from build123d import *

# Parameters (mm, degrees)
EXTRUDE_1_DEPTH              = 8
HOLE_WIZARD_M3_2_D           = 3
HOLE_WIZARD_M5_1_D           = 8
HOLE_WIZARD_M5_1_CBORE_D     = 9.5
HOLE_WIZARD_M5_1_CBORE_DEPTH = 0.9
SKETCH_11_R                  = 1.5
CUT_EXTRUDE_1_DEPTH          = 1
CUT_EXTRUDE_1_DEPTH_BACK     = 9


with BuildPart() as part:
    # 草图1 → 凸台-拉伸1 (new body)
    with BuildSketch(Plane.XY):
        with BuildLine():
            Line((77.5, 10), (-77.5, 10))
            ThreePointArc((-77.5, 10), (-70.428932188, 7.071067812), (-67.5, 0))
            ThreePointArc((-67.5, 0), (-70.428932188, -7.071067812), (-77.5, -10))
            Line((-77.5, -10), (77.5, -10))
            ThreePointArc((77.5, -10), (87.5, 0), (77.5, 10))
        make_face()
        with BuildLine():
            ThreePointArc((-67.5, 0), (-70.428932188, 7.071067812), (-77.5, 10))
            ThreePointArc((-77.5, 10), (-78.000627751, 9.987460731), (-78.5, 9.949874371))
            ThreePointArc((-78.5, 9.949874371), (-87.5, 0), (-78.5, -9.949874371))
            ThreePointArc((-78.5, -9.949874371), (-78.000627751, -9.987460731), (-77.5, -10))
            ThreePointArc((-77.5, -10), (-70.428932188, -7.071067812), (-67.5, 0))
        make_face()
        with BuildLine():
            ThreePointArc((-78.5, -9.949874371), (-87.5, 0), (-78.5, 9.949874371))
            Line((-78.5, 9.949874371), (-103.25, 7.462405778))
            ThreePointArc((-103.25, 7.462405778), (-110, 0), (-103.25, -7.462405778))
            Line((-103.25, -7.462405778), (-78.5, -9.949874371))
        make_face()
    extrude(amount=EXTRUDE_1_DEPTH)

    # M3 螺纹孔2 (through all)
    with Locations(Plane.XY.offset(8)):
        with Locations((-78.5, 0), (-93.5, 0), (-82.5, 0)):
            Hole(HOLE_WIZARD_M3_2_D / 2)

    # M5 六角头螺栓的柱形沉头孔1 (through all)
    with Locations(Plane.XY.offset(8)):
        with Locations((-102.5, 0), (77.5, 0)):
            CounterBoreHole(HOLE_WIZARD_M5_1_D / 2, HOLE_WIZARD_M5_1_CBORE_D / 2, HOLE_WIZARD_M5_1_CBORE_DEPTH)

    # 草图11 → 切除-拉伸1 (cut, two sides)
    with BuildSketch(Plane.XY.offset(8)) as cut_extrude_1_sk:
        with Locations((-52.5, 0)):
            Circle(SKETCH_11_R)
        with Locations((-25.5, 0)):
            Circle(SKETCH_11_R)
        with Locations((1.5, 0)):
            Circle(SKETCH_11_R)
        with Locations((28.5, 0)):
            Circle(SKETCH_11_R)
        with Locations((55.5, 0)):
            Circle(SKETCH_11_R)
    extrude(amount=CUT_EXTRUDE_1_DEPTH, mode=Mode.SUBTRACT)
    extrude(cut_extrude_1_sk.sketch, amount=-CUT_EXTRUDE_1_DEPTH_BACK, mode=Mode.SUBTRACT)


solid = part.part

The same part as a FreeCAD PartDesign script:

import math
import FreeCAD as App
import Part
import Sketcher

V = App.Vector
Q = App.Units.Quantity

doc = App.newDocument("Part")
body = doc.addObject("PartDesign::Body", "Body")

sketch1 = body.newObject("Sketcher::SketchObject", "Sketch")
sketch1.AttachmentSupport = (doc.getObject("XY_Plane"), [""])
sketch1.MapMode = "FlatFace"
sketch1.addGeometry([
    Part.LineSegment(V(77.5, 10, 0), V(-77.5, 10, 0)),
    Part.ArcOfCircle(Part.Circle(V(-77.5, 0, 0), V(0, 0, 1), 10), math.radians(90), math.radians(95.74)),
    Part.LineSegment(V(-78.5, 9.9, 0), V(-103.2, 7.5, 0)),
    Part.ArcOfCircle(Part.Circle(V(-102.5, 0, 0), V(0, 0, 1), 7.5), math.radians(96), math.radians(264)),
    Part.LineSegment(V(-103.2, -7.5, 0), V(-78.5, -9.9, 0)),
    Part.ArcOfCircle(Part.Circle(V(-77.5, 0, 0), V(0, 0, 1), 10), math.radians(-95.74), math.radians(-90)),
    Part.LineSegment(V(-77.5, -10, 0), V(77.5, -10, 0)),
    Part.ArcOfCircle(Part.Circle(V(77.5, 0, 0), V(0, 0, 1), 10), math.radians(-90), math.radians(90)),
], False)
sketch1.addConstraint([
    Sketcher.Constraint("Tangent", 0, 2, 1, 1),
    Sketcher.Constraint("Tangent", 1, 2, 2, 1),
    Sketcher.Constraint("Tangent", 2, 2, 3, 1),
    Sketcher.Constraint("Tangent", 3, 2, 4, 1),
    Sketcher.Constraint("Tangent", 4, 2, 5, 1),
    Sketcher.Constraint("Tangent", 5, 2, 6, 1),
    Sketcher.Constraint("Tangent", 6, 2, 7, 1),
    Sketcher.Constraint("Tangent", 7, 2, 0, 1),
    Sketcher.Constraint("Horizontal", 0),
    Sketcher.Constraint("Horizontal", 6),
    Sketcher.Constraint("Coincident", 5, 3, 1, 3),
    Sketcher.Constraint("Equal", 1, 5),
    Sketcher.Constraint("Symmetric", 1, 3, 7, 3, -1, 1),
    Sketcher.Constraint("PointOnObject", 3, 3, -1),
    Sketcher.Constraint("Radius", 1, Q("10 mm")),
    Sketcher.Constraint("Radius", 3, Q("7.5 mm")),
    Sketcher.Constraint("DistanceX", 0, 2, 0, 1, Q("155 mm")),
    Sketcher.Constraint("DistanceX", 3, 3, 1, 3, Q("25 mm")),
])
pad1 = body.newObject("PartDesign::Pad", "Pad")
pad1.Profile = sketch1
pad1.Length = 8

sketch2 = body.newObject("Sketcher::SketchObject", "Sketch001")
sketch2.AttachmentSupport = (doc.getObject("XY_Plane"), [""])
sketch2.MapMode = "FlatFace"
sketch2.AttachmentOffset = App.Placement(V(0, 0, 8), App.Rotation())
sketch2.addGeometry([
    Part.Circle(V(-78.5, 0, 0), V(0, 0, 1), 1.5),
    Part.Circle(V(-93.5, 0, 0), V(0, 0, 1), 1.5),
    Part.Circle(V(-82.5, 0, 0), V(0, 0, 1), 1.5),
], False)
sketch2.addConstraint([
    Sketcher.Constraint("Equal", 0, 1),
    Sketcher.Constraint("Equal", 1, 2),
    Sketcher.Constraint("PointOnObject", 0, 3, -1),
    Sketcher.Constraint("PointOnObject", 1, 3, -1),
    Sketcher.Constraint("PointOnObject", 2, 3, -1),
    Sketcher.Constraint("Diameter", 0, Q("3 mm")),
    Sketcher.Constraint("DistanceX", 1, 3, 0, 3, Q("15 mm")),
    Sketcher.Constraint("DistanceX", 2, 3, 0, 3, Q("4 mm")),
    Sketcher.Constraint("DistanceX", 0, 3, -1, 1, Q("78.5 mm")),
])
doc.recompute()
hole = body.newObject("PartDesign::Hole", "Hole")
hole.Profile = sketch2
hole.ThreadType = "None"
hole.Diameter = 3
hole.DepthType = "ThroughAll"

sketch3 = body.newObject("Sketcher::SketchObject", "Sketch002")
sketch3.AttachmentSupport = (doc.getObject("XY_Plane"), [""])
sketch3.MapMode = "FlatFace"
sketch3.AttachmentOffset = App.Placement(V(0, 0, 8), App.Rotation())
sketch3.addGeometry([
    Part.Circle(V(-102.5, 0, 0), V(0, 0, 1), 4),
    Part.Circle(V(77.5, 0, 0), V(0, 0, 1), 4),
], False)
sketch3.addConstraint([
    Sketcher.Constraint("Equal", 0, 1),
    Sketcher.Constraint("PointOnObject", 0, 3, -1),
    Sketcher.Constraint("PointOnObject", 1, 3, -1),
    Sketcher.Constraint("Diameter", 0, Q("8 mm")),
    Sketcher.Constraint("DistanceX", 0, 3, 1, 3, Q("180 mm")),
    Sketcher.Constraint("DistanceX", 0, 3, -1, 1, Q("102.5 mm")),
])
doc.recompute()
hole2 = body.newObject("PartDesign::Hole", "Hole001")
hole2.Profile = sketch3
hole2.ThreadType = "None"
hole2.Diameter = 8
hole2.DepthType = "ThroughAll"
hole2.HoleCutType = "Counterbore"
hole2.HoleCutDiameter = 9.5
hole2.HoleCutDepth = 0.9

sketch4 = body.newObject("Sketcher::SketchObject", "Sketch003")
sketch4.AttachmentSupport = (doc.getObject("XY_Plane"), [""])
sketch4.MapMode = "FlatFace"
sketch4.AttachmentOffset = App.Placement(V(0, 0, 8), App.Rotation())
sketch4.addGeometry([
    Part.Circle(V(-52.5, 0, 0), V(0, 0, 1), 1.5),
    Part.Circle(V(-25.5, 0, 0), V(0, 0, 1), 1.5),
    Part.Circle(V(1.5, 0, 0), V(0, 0, 1), 1.5),
    Part.Circle(V(28.5, 0, 0), V(0, 0, 1), 1.5),
    Part.Circle(V(55.5, 0, 0), V(0, 0, 1), 1.5),
], False)
sketch4.addConstraint([
    Sketcher.Constraint("Equal", 0, 1),
    Sketcher.Constraint("Equal", 1, 2),
    Sketcher.Constraint("Equal", 2, 3),
    Sketcher.Constraint("Equal", 3, 4),
    Sketcher.Constraint("PointOnObject", 0, 3, -1),
    Sketcher.Constraint("PointOnObject", 1, 3, -1),
    Sketcher.Constraint("PointOnObject", 2, 3, -1),
    Sketcher.Constraint("PointOnObject", 3, 3, -1),
    Sketcher.Constraint("PointOnObject", 4, 3, -1),
    Sketcher.Constraint("Diameter", 0, Q("3 mm")),
    Sketcher.Constraint("DistanceX", 0, 3, 1, 3, Q("27 mm")),
    Sketcher.Constraint("DistanceX", 1, 3, 2, 3, Q("27 mm")),
    Sketcher.Constraint("DistanceX", 2, 3, 3, 3, Q("27 mm")),
    Sketcher.Constraint("DistanceX", 3, 3, 4, 3, Q("27 mm")),
    Sketcher.Constraint("DistanceX", 0, 3, -1, 1, Q("52.5 mm")),
])
pocket1 = body.newObject("PartDesign::Pocket", "Pocket")
pocket1.Profile = sketch4
pocket1.Type = "ThroughAll"
pocket1.Midplane = True

doc.recompute()
